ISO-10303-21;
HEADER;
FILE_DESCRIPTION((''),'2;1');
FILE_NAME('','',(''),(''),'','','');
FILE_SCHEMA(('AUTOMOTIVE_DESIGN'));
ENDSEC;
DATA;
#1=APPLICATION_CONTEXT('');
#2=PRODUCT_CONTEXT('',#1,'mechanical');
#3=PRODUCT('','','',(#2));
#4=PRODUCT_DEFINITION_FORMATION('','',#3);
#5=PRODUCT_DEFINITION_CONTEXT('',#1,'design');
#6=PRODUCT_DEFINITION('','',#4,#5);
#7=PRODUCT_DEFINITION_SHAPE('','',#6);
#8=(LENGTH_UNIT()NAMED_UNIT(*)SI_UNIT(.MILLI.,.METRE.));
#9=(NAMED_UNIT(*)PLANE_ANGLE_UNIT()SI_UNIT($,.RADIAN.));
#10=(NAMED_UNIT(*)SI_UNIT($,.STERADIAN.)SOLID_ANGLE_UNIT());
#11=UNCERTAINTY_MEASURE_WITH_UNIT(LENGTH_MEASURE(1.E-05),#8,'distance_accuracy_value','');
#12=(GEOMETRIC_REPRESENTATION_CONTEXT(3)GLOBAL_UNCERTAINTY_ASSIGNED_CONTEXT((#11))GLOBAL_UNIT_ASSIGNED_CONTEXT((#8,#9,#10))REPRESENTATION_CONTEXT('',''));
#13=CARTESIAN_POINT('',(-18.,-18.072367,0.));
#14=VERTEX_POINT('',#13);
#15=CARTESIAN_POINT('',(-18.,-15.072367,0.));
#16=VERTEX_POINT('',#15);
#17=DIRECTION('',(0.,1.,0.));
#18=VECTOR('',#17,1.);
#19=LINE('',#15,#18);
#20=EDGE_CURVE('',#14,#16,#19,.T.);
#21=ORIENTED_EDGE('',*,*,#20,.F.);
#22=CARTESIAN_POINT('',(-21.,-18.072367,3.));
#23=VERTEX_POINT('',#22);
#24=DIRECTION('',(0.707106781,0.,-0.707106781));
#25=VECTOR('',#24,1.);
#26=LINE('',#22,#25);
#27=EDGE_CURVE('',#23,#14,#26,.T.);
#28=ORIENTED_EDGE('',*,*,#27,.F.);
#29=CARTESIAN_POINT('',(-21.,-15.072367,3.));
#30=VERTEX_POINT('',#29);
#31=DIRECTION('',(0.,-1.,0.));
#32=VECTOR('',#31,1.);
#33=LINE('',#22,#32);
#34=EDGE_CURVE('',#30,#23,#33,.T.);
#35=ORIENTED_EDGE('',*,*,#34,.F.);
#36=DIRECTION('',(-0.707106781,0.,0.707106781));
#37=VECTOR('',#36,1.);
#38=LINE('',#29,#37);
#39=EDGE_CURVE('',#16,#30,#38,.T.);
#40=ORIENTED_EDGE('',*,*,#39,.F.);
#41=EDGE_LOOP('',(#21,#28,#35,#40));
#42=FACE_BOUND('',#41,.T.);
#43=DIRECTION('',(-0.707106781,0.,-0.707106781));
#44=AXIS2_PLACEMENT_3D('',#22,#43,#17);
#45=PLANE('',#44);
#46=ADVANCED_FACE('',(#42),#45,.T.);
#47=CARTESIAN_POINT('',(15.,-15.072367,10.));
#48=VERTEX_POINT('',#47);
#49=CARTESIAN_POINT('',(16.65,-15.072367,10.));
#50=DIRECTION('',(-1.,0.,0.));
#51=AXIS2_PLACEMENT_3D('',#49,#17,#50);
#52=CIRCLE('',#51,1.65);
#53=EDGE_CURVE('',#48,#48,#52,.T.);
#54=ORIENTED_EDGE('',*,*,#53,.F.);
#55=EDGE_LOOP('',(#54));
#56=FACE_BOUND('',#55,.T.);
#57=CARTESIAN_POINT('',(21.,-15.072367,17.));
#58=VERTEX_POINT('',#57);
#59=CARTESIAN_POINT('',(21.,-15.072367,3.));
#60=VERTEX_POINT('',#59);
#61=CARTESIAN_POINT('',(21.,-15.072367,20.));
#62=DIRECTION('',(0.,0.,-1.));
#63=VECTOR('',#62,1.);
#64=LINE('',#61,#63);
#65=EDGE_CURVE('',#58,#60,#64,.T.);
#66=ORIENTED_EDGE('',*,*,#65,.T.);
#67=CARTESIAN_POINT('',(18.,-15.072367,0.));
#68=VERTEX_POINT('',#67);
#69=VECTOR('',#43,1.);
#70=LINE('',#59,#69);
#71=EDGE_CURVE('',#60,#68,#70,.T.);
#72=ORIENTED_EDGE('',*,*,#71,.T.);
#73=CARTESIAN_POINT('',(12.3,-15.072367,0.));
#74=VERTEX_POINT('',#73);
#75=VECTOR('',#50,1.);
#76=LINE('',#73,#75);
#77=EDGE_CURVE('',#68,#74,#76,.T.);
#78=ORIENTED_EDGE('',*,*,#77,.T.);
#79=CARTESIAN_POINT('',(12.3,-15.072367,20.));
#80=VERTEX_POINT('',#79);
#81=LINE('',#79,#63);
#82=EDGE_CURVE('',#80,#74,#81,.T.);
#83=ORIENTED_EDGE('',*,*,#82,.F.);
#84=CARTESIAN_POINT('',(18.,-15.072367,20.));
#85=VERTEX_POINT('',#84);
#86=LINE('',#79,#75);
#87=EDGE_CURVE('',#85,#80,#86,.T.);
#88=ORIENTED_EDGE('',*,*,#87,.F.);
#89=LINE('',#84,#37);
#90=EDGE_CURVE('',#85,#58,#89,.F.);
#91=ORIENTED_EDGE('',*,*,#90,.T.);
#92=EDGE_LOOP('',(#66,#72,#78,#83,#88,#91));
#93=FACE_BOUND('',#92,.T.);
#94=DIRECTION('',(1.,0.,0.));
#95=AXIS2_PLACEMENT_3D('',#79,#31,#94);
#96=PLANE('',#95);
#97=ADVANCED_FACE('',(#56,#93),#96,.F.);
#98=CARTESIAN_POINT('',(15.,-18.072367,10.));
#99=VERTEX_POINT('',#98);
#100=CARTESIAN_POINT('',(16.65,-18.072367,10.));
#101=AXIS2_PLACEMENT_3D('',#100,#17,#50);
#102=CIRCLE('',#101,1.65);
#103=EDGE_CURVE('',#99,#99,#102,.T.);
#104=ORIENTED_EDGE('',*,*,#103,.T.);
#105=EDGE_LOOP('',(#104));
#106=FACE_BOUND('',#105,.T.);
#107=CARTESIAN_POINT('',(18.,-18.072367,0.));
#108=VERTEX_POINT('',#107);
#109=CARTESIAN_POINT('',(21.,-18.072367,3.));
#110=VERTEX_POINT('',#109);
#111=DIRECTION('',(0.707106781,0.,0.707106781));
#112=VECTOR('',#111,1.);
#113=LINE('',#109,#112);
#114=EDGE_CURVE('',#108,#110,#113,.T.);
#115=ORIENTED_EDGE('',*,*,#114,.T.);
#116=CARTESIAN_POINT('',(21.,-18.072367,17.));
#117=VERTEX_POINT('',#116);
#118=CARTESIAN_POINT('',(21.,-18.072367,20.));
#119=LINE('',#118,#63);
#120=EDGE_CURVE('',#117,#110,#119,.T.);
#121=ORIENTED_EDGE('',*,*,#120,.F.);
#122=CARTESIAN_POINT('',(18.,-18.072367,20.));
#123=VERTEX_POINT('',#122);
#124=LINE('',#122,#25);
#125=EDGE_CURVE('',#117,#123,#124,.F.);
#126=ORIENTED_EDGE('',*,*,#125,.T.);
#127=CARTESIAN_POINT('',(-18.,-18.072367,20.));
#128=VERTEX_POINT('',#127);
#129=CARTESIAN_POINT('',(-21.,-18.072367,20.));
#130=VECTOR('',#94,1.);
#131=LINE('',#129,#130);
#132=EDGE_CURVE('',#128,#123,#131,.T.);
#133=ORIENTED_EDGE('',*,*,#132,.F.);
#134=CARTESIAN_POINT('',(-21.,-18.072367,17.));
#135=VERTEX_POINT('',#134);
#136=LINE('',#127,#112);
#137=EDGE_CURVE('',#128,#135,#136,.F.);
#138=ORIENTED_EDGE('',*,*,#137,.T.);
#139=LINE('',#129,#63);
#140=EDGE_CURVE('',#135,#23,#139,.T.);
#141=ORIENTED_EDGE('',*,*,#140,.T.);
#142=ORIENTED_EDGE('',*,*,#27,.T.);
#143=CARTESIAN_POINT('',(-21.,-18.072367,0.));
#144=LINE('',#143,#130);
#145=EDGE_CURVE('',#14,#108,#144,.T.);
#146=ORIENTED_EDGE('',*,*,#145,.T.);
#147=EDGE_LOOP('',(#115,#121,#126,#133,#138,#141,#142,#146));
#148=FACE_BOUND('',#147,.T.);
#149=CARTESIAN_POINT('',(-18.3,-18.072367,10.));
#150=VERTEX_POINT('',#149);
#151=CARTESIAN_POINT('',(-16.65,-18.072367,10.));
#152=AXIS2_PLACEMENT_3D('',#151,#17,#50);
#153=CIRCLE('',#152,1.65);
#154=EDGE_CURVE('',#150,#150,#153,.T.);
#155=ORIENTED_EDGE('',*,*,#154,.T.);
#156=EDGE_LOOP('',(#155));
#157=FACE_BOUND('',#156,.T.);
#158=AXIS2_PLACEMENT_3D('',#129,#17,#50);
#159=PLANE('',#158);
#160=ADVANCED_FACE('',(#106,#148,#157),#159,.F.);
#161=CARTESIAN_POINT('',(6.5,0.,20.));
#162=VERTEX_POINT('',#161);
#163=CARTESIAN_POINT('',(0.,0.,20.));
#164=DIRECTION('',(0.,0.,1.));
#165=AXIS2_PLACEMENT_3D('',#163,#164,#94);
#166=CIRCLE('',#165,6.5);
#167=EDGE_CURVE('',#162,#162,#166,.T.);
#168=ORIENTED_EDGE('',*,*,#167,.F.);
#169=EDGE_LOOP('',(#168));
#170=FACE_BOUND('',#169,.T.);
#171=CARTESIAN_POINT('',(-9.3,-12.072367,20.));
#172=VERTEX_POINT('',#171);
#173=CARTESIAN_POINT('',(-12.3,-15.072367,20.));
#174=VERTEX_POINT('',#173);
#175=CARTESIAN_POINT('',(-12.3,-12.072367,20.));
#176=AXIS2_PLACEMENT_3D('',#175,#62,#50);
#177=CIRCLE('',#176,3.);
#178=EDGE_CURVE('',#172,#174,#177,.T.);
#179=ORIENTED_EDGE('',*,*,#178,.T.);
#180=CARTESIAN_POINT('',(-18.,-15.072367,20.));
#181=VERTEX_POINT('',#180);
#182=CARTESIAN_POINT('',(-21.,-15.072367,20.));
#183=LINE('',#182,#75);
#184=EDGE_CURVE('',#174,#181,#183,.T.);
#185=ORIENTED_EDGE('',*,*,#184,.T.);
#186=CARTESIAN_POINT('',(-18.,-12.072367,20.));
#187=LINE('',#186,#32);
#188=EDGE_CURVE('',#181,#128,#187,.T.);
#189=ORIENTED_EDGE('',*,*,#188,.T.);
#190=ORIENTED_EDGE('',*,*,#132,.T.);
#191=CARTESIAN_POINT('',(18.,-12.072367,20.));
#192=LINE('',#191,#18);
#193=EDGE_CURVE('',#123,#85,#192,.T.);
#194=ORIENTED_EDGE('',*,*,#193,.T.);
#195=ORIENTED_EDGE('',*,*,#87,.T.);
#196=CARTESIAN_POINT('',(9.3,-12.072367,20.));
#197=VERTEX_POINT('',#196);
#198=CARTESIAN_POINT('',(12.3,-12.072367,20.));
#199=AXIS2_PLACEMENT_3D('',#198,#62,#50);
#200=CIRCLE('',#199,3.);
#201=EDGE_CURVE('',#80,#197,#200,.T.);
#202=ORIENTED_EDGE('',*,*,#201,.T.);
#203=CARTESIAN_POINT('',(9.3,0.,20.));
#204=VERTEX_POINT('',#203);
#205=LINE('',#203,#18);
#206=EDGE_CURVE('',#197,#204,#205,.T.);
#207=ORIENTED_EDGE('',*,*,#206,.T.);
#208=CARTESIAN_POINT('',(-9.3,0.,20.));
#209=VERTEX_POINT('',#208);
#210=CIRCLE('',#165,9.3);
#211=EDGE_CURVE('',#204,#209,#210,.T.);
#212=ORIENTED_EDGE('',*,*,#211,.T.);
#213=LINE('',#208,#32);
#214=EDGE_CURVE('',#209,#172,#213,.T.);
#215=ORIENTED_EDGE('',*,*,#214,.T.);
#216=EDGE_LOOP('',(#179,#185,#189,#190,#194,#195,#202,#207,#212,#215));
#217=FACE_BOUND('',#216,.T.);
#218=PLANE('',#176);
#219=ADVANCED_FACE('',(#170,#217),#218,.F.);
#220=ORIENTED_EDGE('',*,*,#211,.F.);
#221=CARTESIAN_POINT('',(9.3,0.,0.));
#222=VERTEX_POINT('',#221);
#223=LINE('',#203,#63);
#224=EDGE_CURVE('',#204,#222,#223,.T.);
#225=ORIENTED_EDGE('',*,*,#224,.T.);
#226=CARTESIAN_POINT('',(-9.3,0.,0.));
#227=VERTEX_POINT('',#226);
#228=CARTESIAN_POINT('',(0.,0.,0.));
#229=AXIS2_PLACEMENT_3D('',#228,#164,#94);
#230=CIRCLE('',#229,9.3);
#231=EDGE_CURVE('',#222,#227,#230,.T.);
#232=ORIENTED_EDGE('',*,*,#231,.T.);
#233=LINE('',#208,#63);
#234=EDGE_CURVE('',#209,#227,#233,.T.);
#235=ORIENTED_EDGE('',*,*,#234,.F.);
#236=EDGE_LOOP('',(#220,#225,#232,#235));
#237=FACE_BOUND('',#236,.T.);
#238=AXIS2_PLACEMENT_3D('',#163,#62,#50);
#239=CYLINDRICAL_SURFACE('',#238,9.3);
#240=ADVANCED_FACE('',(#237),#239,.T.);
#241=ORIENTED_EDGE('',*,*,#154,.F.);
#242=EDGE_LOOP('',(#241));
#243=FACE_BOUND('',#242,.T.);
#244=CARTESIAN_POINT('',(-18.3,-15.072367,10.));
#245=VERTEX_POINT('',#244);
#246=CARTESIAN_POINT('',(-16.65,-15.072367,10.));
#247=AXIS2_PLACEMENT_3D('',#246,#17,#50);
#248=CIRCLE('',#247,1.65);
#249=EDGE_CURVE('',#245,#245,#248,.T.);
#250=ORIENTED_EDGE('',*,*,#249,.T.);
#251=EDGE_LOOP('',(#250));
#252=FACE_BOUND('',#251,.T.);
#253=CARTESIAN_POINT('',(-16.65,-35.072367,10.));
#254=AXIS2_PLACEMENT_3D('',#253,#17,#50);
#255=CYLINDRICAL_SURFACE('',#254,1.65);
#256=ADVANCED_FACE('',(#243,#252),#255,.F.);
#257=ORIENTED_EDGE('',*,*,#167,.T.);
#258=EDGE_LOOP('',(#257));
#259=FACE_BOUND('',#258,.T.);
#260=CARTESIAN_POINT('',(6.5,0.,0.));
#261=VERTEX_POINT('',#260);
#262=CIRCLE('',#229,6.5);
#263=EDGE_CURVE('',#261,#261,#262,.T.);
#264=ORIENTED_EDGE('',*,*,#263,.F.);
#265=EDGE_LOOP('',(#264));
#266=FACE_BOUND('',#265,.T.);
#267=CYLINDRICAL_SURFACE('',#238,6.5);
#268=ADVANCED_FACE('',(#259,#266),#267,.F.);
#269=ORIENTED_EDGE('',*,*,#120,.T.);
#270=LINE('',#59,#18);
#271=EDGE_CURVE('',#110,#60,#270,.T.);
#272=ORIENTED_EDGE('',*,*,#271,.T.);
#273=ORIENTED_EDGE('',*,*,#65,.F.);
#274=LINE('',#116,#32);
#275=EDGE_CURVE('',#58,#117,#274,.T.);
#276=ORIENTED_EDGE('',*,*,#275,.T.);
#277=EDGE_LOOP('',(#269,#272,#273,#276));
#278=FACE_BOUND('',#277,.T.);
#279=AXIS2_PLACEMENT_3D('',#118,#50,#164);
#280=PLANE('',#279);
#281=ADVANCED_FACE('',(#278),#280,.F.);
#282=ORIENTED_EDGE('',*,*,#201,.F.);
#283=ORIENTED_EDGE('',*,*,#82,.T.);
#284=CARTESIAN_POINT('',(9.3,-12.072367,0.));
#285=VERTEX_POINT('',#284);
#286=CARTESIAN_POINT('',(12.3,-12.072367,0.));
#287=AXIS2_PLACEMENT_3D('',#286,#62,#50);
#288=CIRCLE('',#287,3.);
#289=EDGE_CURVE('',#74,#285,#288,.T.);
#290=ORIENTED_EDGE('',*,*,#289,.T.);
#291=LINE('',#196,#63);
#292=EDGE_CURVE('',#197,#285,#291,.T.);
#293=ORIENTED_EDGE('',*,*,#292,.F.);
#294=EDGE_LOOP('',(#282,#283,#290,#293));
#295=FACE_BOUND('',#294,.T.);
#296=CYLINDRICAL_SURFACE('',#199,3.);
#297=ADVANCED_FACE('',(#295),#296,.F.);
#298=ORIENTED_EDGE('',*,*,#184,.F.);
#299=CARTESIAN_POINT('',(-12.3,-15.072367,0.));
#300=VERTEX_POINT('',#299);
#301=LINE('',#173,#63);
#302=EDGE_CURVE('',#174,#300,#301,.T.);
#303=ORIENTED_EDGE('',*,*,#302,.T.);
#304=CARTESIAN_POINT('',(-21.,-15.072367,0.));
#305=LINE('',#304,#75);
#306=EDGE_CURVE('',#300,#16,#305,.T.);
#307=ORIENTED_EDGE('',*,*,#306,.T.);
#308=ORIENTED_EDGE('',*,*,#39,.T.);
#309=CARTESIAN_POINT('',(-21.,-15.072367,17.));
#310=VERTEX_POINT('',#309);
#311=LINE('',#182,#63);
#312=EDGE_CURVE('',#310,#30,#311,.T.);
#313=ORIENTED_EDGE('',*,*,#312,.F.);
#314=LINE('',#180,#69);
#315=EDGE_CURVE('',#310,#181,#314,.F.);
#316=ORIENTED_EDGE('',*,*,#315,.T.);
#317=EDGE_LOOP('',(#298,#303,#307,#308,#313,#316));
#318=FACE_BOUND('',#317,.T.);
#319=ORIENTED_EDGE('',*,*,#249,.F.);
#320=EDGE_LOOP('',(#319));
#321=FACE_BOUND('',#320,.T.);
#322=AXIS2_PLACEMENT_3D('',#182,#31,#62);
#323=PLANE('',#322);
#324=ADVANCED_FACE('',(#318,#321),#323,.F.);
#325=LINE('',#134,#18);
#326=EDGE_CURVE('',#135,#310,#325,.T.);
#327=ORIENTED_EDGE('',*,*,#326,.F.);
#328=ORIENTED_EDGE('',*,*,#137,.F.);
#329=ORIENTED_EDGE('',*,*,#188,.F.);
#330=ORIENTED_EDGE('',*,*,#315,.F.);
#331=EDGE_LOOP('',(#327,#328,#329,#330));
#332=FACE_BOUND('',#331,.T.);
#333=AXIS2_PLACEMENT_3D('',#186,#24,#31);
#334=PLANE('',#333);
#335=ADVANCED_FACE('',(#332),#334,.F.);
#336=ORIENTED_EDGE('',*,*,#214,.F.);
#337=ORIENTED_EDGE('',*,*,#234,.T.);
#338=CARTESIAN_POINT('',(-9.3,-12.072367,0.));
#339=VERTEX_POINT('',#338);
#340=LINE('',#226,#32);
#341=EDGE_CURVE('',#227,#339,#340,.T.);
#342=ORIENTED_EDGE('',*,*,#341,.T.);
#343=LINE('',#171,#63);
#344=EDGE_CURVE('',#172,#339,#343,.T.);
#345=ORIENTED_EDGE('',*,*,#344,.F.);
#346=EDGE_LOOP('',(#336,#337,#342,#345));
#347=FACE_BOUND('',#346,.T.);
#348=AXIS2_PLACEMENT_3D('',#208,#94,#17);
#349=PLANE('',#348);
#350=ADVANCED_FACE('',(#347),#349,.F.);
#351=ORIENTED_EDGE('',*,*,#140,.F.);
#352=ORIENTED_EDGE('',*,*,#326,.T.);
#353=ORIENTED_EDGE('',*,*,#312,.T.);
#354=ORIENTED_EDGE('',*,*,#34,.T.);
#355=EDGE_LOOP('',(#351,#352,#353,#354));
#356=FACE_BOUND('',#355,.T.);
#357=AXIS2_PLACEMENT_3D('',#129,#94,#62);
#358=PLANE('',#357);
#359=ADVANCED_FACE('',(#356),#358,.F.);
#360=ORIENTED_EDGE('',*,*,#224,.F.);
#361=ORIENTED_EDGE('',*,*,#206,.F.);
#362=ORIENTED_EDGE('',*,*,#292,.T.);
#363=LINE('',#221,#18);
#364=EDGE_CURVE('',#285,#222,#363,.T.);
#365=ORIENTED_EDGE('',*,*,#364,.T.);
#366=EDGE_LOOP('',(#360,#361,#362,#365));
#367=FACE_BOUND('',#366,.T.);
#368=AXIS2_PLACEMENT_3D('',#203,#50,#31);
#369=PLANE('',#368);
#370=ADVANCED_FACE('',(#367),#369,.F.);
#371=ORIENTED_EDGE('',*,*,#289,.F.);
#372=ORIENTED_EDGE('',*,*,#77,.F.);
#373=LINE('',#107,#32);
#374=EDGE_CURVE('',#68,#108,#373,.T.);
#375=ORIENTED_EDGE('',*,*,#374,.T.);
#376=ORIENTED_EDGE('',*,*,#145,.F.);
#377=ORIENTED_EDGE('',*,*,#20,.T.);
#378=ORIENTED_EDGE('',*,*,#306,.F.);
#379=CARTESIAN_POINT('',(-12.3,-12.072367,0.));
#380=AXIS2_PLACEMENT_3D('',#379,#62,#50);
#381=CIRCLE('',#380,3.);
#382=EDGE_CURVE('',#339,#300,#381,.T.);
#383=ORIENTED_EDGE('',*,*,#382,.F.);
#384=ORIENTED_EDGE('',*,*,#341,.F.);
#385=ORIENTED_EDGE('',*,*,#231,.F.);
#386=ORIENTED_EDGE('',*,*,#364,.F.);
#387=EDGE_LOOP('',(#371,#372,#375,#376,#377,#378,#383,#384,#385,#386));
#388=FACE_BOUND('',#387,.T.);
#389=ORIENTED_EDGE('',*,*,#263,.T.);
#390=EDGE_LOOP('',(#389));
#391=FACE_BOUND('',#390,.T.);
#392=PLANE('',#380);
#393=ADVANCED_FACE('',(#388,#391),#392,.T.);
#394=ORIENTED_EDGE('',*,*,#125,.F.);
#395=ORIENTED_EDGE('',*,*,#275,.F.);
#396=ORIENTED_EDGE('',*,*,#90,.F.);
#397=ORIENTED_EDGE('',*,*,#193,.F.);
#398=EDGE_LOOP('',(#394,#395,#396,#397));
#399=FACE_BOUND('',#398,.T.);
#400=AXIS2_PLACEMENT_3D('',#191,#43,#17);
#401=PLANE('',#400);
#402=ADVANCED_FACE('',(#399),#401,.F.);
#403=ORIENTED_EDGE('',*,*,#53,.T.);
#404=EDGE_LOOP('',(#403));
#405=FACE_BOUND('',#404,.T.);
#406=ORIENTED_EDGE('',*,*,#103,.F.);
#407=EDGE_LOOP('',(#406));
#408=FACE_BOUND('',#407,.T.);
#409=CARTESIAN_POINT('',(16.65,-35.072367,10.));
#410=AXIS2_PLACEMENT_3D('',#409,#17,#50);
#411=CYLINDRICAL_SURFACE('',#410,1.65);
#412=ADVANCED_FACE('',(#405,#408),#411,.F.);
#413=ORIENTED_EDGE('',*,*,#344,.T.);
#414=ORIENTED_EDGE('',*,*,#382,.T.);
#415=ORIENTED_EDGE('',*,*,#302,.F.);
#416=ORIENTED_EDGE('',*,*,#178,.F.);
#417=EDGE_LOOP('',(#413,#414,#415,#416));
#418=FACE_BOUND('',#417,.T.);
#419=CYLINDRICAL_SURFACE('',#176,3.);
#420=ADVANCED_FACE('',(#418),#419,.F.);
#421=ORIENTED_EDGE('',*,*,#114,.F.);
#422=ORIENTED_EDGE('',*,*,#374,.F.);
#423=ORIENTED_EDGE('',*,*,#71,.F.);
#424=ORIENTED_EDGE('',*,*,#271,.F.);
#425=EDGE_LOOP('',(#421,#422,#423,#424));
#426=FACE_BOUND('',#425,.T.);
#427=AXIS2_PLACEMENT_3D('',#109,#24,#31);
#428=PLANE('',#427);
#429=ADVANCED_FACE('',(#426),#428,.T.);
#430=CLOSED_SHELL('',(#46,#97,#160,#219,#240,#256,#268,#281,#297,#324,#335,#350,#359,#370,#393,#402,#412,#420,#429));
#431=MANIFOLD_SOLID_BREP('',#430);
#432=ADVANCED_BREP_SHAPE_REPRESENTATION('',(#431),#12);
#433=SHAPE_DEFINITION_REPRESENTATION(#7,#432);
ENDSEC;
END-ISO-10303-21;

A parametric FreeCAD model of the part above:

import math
import FreeCAD as App
import Part
import Sketcher
from FreeCAD import Vector
Q = App.Units.Quantity


def edges_at(feature, points):
    """Names of the edges that pass closest to the given points."""
    edges = feature.Shape.Edges
    near = lambda p: min(range(len(edges)), key=lambda i: edges[i].distToShape(Part.Vertex(*p))[0])
    return sorted({f"Edge{near(p) + 1}" for p in points})

doc = App.newDocument("Part")
body = doc.addObject("PartDesign::Body", "Body")

# Sketch on XY plane
sketch1 = body.newObject("Sketcher::SketchObject", "Sketch")
sketch1.AttachmentSupport = (doc.getObject("XY_Plane"), [""])
sketch1.MapMode = "FlatFace"
sketch1.addGeometry(Part.LineSegment(Vector(-21, -18.1, 0), Vector(21, -18.1, 0)), False)
sketch1.addGeometry(Part.LineSegment(Vector(21, -18.1, 0), Vector(21, -15.1, 0)), False)
sketch1.addGeometry(Part.LineSegment(Vector(21, -15.1, 0), Vector(12.3, -15.1, 0)), False)
sketch1.addGeometry(Part.ArcOfCircle(Part.Circle(Vector(12.3, -12.1, 0), Vector(0, 0, 1), 3), math.radians(180), math.radians(270)), False)
sketch1.addGeometry(Part.LineSegment(Vector(9.3, -12.1, 0), Vector(9.3, 0, 0)), False)
sketch1.addGeometry(Part.ArcOfCircle(Part.Circle(Vector(0, 0, 0), Vector(0, 0, 1), 9.3), math.radians(0), math.radians(180)), False)
sketch1.addGeometry(Part.LineSegment(Vector(-9.3, 0, 0), Vector(-9.3, -12.1, 0)), False)
sketch1.addGeometry(Part.ArcOfCircle(Part.Circle(Vector(-12.3, -12.1, 0), Vector(0, 0, 1), 3), math.radians(-90), math.radians(0)), False)
sketch1.addGeometry(Part.LineSegment(Vector(-12.3, -15.1, 0), Vector(-21, -15.1, 0)), False)
sketch1.addGeometry(Part.LineSegment(Vector(-21, -15.1, 0), Vector(-21, -18.1, 0)), False)
sketch1.addGeometry(Part.Circle(Vector(0, 0, 0), Vector(0, 0, 1), 6.5), False)
sketch1.addConstraint(Sketcher.Constraint("Coincident", 0, 2, 1, 1))
sketch1.addConstraint(Sketcher.Constraint("Coincident", 1, 2, 2, 1))
sketch1.addConstraint(Sketcher.Constraint("Tangent", 2, 2, 3, 2))
sketch1.addConstraint(Sketcher.Constraint("Tangent", 3, 1, 4, 1))
sketch1.addConstraint(Sketcher.Constraint("Tangent", 4, 2, 5, 1))
sketch1.addConstraint(Sketcher.Constraint("Tangent", 5, 2, 6, 1))
sketch1.addConstraint(Sketcher.Constraint("Tangent", 6, 2, 7, 2))
sketch1.addConstraint(Sketcher.Constraint("Tangent", 7, 1, 8, 1))
sketch1.addConstraint(Sketcher.Constraint("Coincident", 8, 2, 9, 1))
sketch1.addConstraint(Sketcher.Constraint("Coincident", 9, 2, 0, 1))
sketch1.addConstraint(Sketcher.Constraint("Horizontal", 0))
sketch1.addConstraint(Sketcher.Constraint("Vertical", 1))
sketch1.addConstraint(Sketcher.Constraint("Horizontal", 2))
sketch1.addConstraint(Sketcher.Constraint("Vertical", 4))
sketch1.addConstraint(Sketcher.Constraint("Vertical", 6))
sketch1.addConstraint(Sketcher.Constraint("Horizontal", 8))
sketch1.addConstraint(Sketcher.Constraint("Vertical", 9))
sketch1.addConstraint(Sketcher.Constraint("Coincident", 5, 3, -1, 1))
sketch1.addConstraint(Sketcher.Constraint("Coincident", 10, 3, -1, 1))
sketch1.addConstraint(Sketcher.Constraint("Equal", 3, 7))
sketch1.addConstraint(Sketcher.Constraint("Symmetric", 1, 2, 8, 2, -2))
sketch1.addConstraint(Sketcher.Constraint("Diameter", 10, Q("13 mm")))
sketch1.addConstraint(Sketcher.Constraint("Radius", 3, Q("3 mm")))
sketch1.addConstraint(Sketcher.Constraint("Radius", 5, Q("9.3 mm")))
sketch1.addConstraint(Sketcher.Constraint("DistanceX", 0, 1, 0, 2, Q("42 mm")))
sketch1.addConstraint(Sketcher.Constraint("DistanceY", 1, 1, 1, 2, Q("3 mm")))
sketch1.addConstraint(Sketcher.Constraint("DistanceY", 4, 1, 4, 2, Q("12.072367 mm")))
pad1 = body.newObject("PartDesign::Pad", "Pad")
pad1.Profile = sketch1
pad1.Length = 20
doc.recompute()

chamfer = body.newObject("PartDesign::Chamfer", "Chamfer")
chamfer.Base = (pad1, edges_at(pad1, [
    (21, -16.572, 20),
    (21, -16.572, 0),
    (-21, -16.572, 0),
    (-21, -16.572, 20),
]))
chamfer.Size = 3

# Sketch on XZ plane
sketch2 = body.newObject("Sketcher::SketchObject", "Sketch001")
sketch2.AttachmentSupport = (doc.getObject("XZ_Plane"), [""])
sketch2.MapMode = "FlatFace"
sketch2.AttachmentOffset = App.Placement(Vector(0, 0, 15.072367), App.Rotation())
sketch2.addGeometry(Part.Circle(Vector(16.6, 10, 0), Vector(0, 0, 1), 1.6), False)
sketch2.addGeometry(Part.Circle(Vector(-16.6, 10, 0), Vector(0, 0, 1), 1.6), False)
sketch2.addConstraint(Sketcher.Constraint("Equal", 0, 1))
sketch2.addConstraint(Sketcher.Constraint("Symmetric", 0, 3, 1, 3, -2))
sketch2.addConstraint(Sketcher.Constraint("Diameter", 0, Q("3.3 mm")))
sketch2.addConstraint(Sketcher.Constraint("DistanceY", -1, 1, 0, 3, Q("10 mm")))
sketch2.addConstraint(Sketcher.Constraint("DistanceX", 1, 3, 0, 3, Q("33.3 mm")))
pocket1 = body.newObject("PartDesign::Pocket", "Pocket")
pocket1.Profile = sketch2
pocket1.Length = 20
pocket1.Reversed = True

doc.recompute()
